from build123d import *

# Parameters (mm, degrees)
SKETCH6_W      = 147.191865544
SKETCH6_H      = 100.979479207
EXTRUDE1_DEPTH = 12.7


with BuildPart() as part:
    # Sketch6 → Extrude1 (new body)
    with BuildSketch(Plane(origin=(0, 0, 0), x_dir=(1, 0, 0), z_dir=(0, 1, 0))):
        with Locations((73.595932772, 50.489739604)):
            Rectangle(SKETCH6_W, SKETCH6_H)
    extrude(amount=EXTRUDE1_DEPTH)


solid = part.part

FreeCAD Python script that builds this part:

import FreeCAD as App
import Part
import Sketcher
from FreeCAD import Vector
Q = App.Units.Quantity

doc = App.newDocument("Part")
body = doc.addObject("PartDesign::Body", "Body")

# Sketch on XZ plane
sketch1 = doc.addObject("Sketcher::SketchObject", "Sketch")
body.addObject(sketch1)
sketch1.AttachmentSupport = (doc.XZ_Plane, [""])
sketch1.MapMode = "FlatFace"
sketch1.addGeometry(Part.LineSegment(Vector(0, -101, 0), Vector(0, 0, 0)), False)
sketch1.addGeometry(Part.LineSegment(Vector(0, 0, 0), Vector(147, 0, 0)), False)
sketch1.addGeometry(Part.LineSegment(Vector(147, 0, 0), Vector(147, -101, 0)), False)
sketch1.addGeometry(Part.LineSegment(Vector(147, -101, 0), Vector(0, -101, 0)), False)
sketch1.addConstraint(Sketcher.Constraint("Coincident", 0, 2, 1, 1))
sketch1.addConstraint(Sketcher.Constraint("Coincident", 1, 2, 2, 1))
sketch1.addConstraint(Sketcher.Constraint("Coincident", 2, 2, 3, 1))
sketch1.addConstraint(Sketcher.Constraint("Coincident", 3, 2, 0, 1))
sketch1.addConstraint(Sketcher.Constraint("Vertical", 0))
sketch1.addConstraint(Sketcher.Constraint("Horizontal", 1))
sketch1.addConstraint(Sketcher.Constraint("Vertical", 2))
sketch1.addConstraint(Sketcher.Constraint("Horizontal", 3))
sketch1.addConstraint(Sketcher.Constraint("Coincident", 0, 2, -1, 1))
sketch1.addConstraint(Sketcher.Constraint("DistanceY", 0, 1, 0, 2, Q("100.979479 mm")))
sketch1.addConstraint(Sketcher.Constraint("DistanceX", 1, 1, 1, 2, Q("147.191866 mm")))
pad1 = doc.addObject("PartDesign::Pad", "Pad")
body.addObject(pad1)
pad1.Profile = sketch1
pad1.Length = Q("0.5 in")
pad1.Reversed = True

doc.recompute()
